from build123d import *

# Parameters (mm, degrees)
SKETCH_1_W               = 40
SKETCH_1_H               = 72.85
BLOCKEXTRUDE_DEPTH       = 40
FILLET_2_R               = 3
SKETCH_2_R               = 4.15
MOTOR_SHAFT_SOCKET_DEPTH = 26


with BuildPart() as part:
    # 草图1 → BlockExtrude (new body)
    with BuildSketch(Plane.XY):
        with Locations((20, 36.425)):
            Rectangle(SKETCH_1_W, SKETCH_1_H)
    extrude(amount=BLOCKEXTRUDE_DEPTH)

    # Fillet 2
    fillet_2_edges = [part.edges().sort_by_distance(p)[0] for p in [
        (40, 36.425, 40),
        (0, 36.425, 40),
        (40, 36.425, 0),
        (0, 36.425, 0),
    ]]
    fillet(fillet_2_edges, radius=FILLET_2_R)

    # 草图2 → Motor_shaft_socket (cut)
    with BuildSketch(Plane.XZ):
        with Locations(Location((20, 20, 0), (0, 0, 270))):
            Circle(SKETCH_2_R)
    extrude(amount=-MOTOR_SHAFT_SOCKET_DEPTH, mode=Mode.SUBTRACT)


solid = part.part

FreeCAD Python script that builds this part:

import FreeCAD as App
import Part
import Sketcher


def edges_at(feature, points):
    """Names of the edges that pass closest to the given points."""
    edges = feature.Shape.Edges
    near = lambda p: min(range(len(edges)), key=lambda i: edges[i].distToShape(Part.Vertex(*p))[0])
    return sorted({f"Edge{near(p) + 1}" for p in points})

doc = App.newDocument("Part")
body = doc.addObject("PartDesign::Body", "Body")

# Sketch on XY plane
sketch1 = body.newObject("Sketcher::SketchObject", "Sketch")
sketch1.AttachmentSupport = (doc.getObject("XY_Plane"), [""])
sketch1.MapMode = "FlatFace"
sketch1.addGeometry(Part.LineSegment(App.Vector(0, 72.85, 0), App.Vector(0, 0, 0)), False)
sketch1.addGeometry(Part.LineSegment(App.Vector(0, 0, 0), App.Vector(40, 0, 0)), False)
sketch1.addGeometry(Part.LineSegment(App.Vector(40, 0, 0), App.Vector(40, 72.85, 0)), False)
sketch1.addGeometry(Part.LineSegment(App.Vector(40, 72.85, 0), App.Vector(0, 72.85, 0)), False)
sketch1.addConstraint(Sketcher.Constraint("Coincident", 0, 2, 1, 1))
sketch1.addConstraint(Sketcher.Constraint("Coincident", 1, 2, 2, 1))
sketch1.addConstraint(Sketcher.Constraint("Coincident", 2, 2, 3, 1))
sketch1.addConstraint(Sketcher.Constraint("Coincident", 3, 2, 0, 1))
sketch1.addConstraint(Sketcher.Constraint("Vertical", 0))
sketch1.addConstraint(Sketcher.Constraint("Horizontal", 1))
sketch1.addConstraint(Sketcher.Constraint("Vertical", 2))
sketch1.addConstraint(Sketcher.Constraint("Horizontal", 3))
sketch1.addConstraint(Sketcher.Constraint("Coincident", 0, 2, -1, 1))
sketch1.addConstraint(Sketcher.Constraint("DistanceX", 1, 1, 1, 2, 40.0))
sketch1.addConstraint(Sketcher.Constraint("DistanceY", 0, 2, 0, 1, 72.85))
pad1 = body.newObject("PartDesign::Pad", "Pad")
pad1.Profile = sketch1
pad1.Length = 40
doc.recompute()

fillet = body.newObject("PartDesign::Fillet", "Fillet")
fillet.Base = (pad1, edges_at(pad1, [
    (40, 36.425, 40),
    (0, 36.425, 40),
    (40, 36.425, 0),
    (0, 36.425, 0),
]))
fillet.Radius = 3

# Sketch on XZ plane
sketch2 = body.newObject("Sketcher::SketchObject", "Sketch001")
sketch2.AttachmentSupport = (doc.getObject("XZ_Plane"), [""])
sketch2.MapMode = "FlatFace"
sketch2.addGeometry(Part.Circle(App.Vector(20, 20, 0), App.Vector(0, 0, 1), 4.15), False)
sketch2.addConstraint(Sketcher.Constraint("Diameter", 0, 8.3))
sketch2.addConstraint(Sketcher.Constraint("DistanceX", -1, 1, 0, 3, 20.0))
sketch2.addConstraint(Sketcher.Constraint("DistanceY", -1, 1, 0, 3, 20.0))
pocket1 = body.newObject("PartDesign::Pocket", "Pocket")
pocket1.Profile = sketch2
pocket1.Length = 26

doc.recompute()
